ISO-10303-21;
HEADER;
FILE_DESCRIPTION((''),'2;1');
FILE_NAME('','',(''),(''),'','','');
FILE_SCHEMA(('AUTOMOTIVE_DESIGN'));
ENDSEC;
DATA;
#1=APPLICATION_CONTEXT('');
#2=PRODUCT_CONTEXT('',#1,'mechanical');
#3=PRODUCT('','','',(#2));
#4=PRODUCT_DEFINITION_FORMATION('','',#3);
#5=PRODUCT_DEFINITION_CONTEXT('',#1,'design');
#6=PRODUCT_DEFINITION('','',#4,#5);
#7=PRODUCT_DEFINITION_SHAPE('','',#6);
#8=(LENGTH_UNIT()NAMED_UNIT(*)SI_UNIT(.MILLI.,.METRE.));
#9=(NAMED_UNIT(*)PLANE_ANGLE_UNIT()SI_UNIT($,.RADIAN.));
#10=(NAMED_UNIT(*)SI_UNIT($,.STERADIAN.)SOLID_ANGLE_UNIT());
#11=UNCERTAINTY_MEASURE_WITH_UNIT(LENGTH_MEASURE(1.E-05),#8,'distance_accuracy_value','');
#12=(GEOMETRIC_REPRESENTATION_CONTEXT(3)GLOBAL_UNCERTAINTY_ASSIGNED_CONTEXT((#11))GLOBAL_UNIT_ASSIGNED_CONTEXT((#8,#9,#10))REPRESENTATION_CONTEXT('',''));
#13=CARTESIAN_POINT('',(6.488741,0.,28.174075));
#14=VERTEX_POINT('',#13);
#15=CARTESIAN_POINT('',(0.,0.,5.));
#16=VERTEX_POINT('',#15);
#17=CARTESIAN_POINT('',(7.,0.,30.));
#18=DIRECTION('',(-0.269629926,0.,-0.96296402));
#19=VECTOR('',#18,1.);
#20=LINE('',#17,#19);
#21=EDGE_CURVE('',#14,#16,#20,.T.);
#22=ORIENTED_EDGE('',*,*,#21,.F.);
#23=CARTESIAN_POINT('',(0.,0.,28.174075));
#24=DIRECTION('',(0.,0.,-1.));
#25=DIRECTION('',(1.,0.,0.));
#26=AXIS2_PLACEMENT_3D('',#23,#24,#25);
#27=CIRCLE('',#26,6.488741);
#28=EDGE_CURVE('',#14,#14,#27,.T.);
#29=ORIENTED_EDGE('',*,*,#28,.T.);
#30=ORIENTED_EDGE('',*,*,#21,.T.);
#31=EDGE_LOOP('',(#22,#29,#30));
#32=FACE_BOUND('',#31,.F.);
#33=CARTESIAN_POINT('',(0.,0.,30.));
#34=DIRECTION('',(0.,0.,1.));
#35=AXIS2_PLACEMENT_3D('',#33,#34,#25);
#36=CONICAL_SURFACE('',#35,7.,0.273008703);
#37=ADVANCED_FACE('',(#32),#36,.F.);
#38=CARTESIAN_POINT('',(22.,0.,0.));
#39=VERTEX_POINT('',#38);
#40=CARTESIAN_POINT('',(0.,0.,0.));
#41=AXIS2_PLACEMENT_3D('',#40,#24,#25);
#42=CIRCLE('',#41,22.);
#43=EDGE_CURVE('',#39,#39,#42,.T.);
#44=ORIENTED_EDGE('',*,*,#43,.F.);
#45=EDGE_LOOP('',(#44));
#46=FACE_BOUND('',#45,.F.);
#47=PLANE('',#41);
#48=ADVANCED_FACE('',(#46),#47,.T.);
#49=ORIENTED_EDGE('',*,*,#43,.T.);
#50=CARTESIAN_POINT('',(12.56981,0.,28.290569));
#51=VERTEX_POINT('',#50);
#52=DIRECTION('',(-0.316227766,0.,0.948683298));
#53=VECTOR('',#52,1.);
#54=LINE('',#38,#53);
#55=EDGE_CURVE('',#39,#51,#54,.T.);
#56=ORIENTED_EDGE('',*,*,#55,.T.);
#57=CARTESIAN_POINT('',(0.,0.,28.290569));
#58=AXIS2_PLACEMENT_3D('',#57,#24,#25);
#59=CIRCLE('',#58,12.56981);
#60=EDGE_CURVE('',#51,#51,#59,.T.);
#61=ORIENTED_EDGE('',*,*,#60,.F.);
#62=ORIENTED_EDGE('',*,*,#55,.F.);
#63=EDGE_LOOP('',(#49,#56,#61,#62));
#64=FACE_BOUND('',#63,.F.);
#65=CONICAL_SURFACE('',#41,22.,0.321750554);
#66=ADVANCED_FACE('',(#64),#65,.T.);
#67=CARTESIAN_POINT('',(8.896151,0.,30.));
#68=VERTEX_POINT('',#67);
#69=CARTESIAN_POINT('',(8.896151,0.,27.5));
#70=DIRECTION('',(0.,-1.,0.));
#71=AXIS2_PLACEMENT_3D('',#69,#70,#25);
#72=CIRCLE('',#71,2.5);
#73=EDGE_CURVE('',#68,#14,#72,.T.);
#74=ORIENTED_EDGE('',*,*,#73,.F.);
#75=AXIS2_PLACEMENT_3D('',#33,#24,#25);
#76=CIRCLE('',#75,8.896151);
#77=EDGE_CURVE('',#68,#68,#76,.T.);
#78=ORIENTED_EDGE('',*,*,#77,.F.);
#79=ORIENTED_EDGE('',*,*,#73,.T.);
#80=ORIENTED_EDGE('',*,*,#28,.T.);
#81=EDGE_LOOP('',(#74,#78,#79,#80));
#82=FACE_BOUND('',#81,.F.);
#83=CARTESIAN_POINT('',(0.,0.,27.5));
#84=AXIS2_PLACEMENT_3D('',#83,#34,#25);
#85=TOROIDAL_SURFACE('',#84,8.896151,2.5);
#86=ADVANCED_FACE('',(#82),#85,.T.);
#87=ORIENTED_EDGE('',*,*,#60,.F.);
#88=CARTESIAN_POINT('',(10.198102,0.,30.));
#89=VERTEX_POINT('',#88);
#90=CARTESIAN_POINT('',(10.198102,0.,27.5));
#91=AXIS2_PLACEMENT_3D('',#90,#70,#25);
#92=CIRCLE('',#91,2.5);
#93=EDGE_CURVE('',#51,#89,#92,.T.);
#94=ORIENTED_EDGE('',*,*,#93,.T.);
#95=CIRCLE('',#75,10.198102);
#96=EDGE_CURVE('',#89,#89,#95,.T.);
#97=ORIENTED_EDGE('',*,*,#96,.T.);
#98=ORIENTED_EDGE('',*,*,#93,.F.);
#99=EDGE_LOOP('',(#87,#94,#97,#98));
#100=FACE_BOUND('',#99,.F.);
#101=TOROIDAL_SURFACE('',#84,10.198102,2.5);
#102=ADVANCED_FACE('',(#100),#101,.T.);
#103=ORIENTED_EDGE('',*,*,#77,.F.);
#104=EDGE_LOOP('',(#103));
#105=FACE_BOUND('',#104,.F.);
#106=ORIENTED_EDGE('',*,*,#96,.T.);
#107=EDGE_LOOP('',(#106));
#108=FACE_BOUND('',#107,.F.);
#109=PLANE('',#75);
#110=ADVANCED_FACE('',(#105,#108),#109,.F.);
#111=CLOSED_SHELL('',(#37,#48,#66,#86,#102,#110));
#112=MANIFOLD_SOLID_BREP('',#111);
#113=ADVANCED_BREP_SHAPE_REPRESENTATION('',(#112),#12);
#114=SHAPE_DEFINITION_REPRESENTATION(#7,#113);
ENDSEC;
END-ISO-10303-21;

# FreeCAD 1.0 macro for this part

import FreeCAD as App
import Part
import Sketcher

V = App.Vector


def edges_at(feature, points):
    """Names of the edges that pass closest to the given points."""
    edges = feature.Shape.Edges
    near = lambda p: min(range(len(edges)), key=lambda i: edges[i].distToShape(Part.Vertex(*p))[0])
    return sorted({f"Edge{near(p) + 1}" for p in points})


def add_polygon(sketch, points):
    """Adds a closed chain of lines whose ends are joined by coincident constraints."""
    first, n = sketch.GeometryCount, len(points)
    for a, b in zip(points, points[1:] + points[:1]):
        sketch.addGeometry(Part.LineSegment(App.Vector(*a, 0), App.Vector(*b, 0)), False)
    for i in range(n):
        sketch.addConstraint(Sketcher.Constraint("Coincident", first + i, 2, first + (i + 1) % n, 1))

doc = App.newDocument("Part")
body = doc.addObject("PartDesign::Body", "Body")

sketch1 = body.newObject("Sketcher::SketchObject", "Sketch")
sketch1.AttachmentSupport = (doc.getObject("XZ_Plane"), [""])
sketch1.MapMode = "FlatFace"
add_polygon(sketch1, [(0, 5), (0, 0), (22, 0), (12, 30), (7, 30)])
sketch1.addConstraint([
    Sketcher.Constraint("Vertical", 0),
    Sketcher.Constraint("Horizontal", 1),
    Sketcher.Constraint("Horizontal", 3),
    Sketcher.Constraint("Coincident", 0, 2, -1, 1),
    Sketcher.Constraint("Equal", 3, 0),
    Sketcher.Constraint("DistanceX", 1, 1, 1, 2, 22.0),
    Sketcher.Constraint("DistanceX", 3, 2, 3, 1, 5.0),
    Sketcher.Constraint("DistanceX", -1, 1, 2, 2, 12.0),
    Sketcher.Constraint("DistanceY", -1, 1, 2, 2, 30.0),
])
revolution = body.newObject("PartDesign::Revolution", "Revolution")
revolution.Profile = sketch1
revolution.ReferenceAxis = (sketch1, ["V_Axis"])
revolution.Angle = 360
doc.recompute()

fillet = body.newObject("PartDesign::Fillet", "Fillet")
fillet.Base = (revolution, edges_at(revolution, [(-12, 0, 30), (-7, 0, 30)]))
fillet.Radius = 2.5

doc.recompute()
